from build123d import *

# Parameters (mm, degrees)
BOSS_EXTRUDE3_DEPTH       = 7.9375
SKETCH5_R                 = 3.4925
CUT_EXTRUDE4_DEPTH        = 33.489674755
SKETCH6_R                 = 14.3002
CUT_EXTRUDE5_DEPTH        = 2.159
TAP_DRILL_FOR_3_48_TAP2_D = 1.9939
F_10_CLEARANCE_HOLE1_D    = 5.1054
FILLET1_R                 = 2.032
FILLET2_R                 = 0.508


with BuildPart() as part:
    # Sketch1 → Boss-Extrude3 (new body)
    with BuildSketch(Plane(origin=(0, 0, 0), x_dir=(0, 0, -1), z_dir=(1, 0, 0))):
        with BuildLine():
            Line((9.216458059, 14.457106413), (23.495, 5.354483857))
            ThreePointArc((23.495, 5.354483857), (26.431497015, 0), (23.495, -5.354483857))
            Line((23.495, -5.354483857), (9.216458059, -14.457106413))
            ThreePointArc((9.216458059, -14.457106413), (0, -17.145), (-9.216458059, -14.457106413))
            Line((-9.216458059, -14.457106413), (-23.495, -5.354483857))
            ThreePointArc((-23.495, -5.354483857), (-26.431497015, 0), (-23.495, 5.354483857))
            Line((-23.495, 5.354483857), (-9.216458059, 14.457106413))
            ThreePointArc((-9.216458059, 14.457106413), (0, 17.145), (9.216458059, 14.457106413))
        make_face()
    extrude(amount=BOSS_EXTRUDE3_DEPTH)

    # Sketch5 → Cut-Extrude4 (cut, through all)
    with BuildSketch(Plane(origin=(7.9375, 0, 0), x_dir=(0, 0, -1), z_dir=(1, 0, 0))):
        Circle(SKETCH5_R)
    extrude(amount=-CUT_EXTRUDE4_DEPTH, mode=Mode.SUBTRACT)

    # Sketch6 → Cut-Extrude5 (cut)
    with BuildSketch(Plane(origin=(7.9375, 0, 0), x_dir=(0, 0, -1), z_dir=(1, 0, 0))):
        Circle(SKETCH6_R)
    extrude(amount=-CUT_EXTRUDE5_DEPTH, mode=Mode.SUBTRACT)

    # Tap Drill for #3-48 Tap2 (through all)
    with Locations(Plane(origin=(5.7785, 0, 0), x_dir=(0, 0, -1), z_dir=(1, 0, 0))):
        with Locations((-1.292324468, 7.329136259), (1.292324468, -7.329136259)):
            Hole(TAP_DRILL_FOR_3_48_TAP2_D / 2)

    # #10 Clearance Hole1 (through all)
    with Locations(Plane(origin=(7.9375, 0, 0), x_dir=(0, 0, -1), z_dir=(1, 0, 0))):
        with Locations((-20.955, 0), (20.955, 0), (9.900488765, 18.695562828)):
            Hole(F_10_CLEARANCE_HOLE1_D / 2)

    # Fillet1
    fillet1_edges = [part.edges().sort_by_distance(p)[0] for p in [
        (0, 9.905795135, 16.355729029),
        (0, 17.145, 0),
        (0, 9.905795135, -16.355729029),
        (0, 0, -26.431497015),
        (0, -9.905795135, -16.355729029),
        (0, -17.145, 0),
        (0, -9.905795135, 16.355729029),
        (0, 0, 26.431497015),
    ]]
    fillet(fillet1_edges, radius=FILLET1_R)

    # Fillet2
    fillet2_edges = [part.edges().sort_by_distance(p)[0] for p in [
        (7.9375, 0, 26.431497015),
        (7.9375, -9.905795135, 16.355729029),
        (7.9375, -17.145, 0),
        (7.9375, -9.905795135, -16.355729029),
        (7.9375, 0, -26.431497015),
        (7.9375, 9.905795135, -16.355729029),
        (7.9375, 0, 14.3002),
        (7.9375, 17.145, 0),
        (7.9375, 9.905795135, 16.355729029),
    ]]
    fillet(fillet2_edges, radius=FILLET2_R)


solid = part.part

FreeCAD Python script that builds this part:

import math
import FreeCAD as App
import Part
import Sketcher

V = App.Vector
Q = App.Units.Quantity


def edges_at(feature, points):
    """Names of the edges that pass closest to the given points."""
    edges = feature.Shape.Edges
    near = lambda p: min(range(len(edges)), key=lambda i: edges[i].distToShape(Part.Vertex(*p))[0])
    return sorted({f"Edge{near(p) + 1}" for p in points})

doc = App.newDocument("Part")
body = doc.addObject("PartDesign::Body", "Body")

# Sketch on YZ plane
sketch1 = body.newObject("Sketcher::SketchObject", "Sketch")
sketch1.AttachmentSupport = (doc.getObject("YZ_Plane"), [""])
sketch1.MapMode = "FlatFace"
sketch1.addGeometry(Part.LineSegment(V(5, -23, 0), V(14, -9, 0)), False)
sketch1.addGeometry(Part.ArcOfCircle(Part.Circle(V(0, 0, 0), V(0, 0, 1), 17), math.radians(-33), math.radians(33)), False)
sketch1.addGeometry(Part.LineSegment(V(14, 9, 0), V(5, 23, 0)), False)
sketch1.addGeometry(Part.ArcOfCircle(Part.Circle(V(0, 20, 0), V(0, 0, 1), 6), math.radians(33), math.radians(147)), False)
sketch1.addGeometry(Part.LineSegment(V(-5, 23, 0), V(-14, 9, 0)), False)
sketch1.addGeometry(Part.ArcOfCircle(Part.Circle(V(0, 0, 0), V(0, 0, 1), 17), math.radians(147), math.radians(213)), False)
sketch1.addGeometry(Part.LineSegment(V(-14, -9, 0), V(-5, -23, 0)), False)
sketch1.addGeometry(Part.ArcOfCircle(Part.Circle(V(0, -20, 0), V(0, 0, 1), 6), math.radians(-147), math.radians(-33)), False)
sketch1.addConstraint(Sketcher.Constraint("Tangent", 0, 2, 1, 1))
sketch1.addConstraint(Sketcher.Constraint("Tangent", 1, 2, 2, 1))
sketch1.addConstraint(Sketcher.Constraint("Tangent", 2, 2, 3, 1))
sketch1.addConstraint(Sketcher.Constraint("Tangent", 3, 2, 4, 1))
sketch1.addConstraint(Sketcher.Constraint("Tangent", 4, 2, 5, 1))
sketch1.addConstraint(Sketcher.Constraint("Tangent", 5, 2, 6, 1))
sketch1.addConstraint(Sketcher.Constraint("Tangent", 6, 2, 7, 1))
sketch1.addConstraint(Sketcher.Constraint("Tangent", 7, 2, 0, 1))
sketch1.addConstraint(Sketcher.Constraint("Coincident", 1, 3, -1, 1))
sketch1.addConstraint(Sketcher.Constraint("Coincident", 5, 3, -1, 1))
sketch1.addConstraint(Sketcher.Constraint("Equal", 1, 5))
sketch1.addConstraint(Sketcher.Constraint("Equal", 3, 7))
sketch1.addConstraint(Sketcher.Constraint("Symmetric", 3, 3, 7, 3, -1, 1))
sketch1.addConstraint(Sketcher.Constraint("PointOnObject", 3, 3, -2))
sketch1.addConstraint(Sketcher.Constraint("Radius", 3, Q("0.25 in")))
sketch1.addConstraint(Sketcher.Constraint("Radius", 1, Q("0.675 in")))
sketch1.addConstraint(Sketcher.Constraint("DistanceY", -1, 1, 2, 2, Q("0.925 in")))
pad1 = body.newObject("PartDesign::Pad", "Pad")
pad1.Profile = sketch1
pad1.Length = Q("0.3125 in")

# Sketch on YZ plane
sketch2 = body.newObject("Sketcher::SketchObject", "Sketch001")
sketch2.AttachmentSupport = (doc.getObject("YZ_Plane"), [""])
sketch2.MapMode = "FlatFace"
sketch2.AttachmentOffset = App.Placement(V(0, 0, 0.3125 * 25.4), App.Rotation())
sketch2.addGeometry(Part.Circle(V(0, 0, 0), V(0, 0, 1), 3.5), False)
sketch2.addConstraint(Sketcher.Constraint("Coincident", 0, 3, -1, 1))
sketch2.addConstraint(Sketcher.Constraint("Diameter", 0, Q("0.275 in")))
pocket1 = body.newObject("PartDesign::Pocket", "Pocket")
pocket1.Profile = sketch2
pocket1.Type = "ThroughAll"

# Sketch on YZ plane
sketch3 = body.newObject("Sketcher::SketchObject", "Sketch002")
sketch3.AttachmentSupport = (doc.getObject("YZ_Plane"), [""])
sketch3.MapMode = "FlatFace"
sketch3.AttachmentOffset = App.Placement(V(0, 0, 0.3125 * 25.4), App.Rotation())
sketch3.addGeometry(Part.Circle(V(0, 0, 0), V(0, 0, 1), 14), False)
sketch3.addConstraint(Sketcher.Constraint("Coincident", 0, 3, -1, 1))
sketch3.addConstraint(Sketcher.Constraint("Diameter", 0, Q("1.126 in")))
pocket2 = body.newObject("PartDesign::Pocket", "Pocket001")
pocket2.Profile = sketch3
pocket2.Length = Q("0.085 in")

# Sketch on YZ plane
sketch4 = body.newObject("Sketcher::SketchObject", "Sketch003")
sketch4.AttachmentSupport = (doc.getObject("YZ_Plane"), [""])
sketch4.MapMode = "FlatFace"
sketch4.AttachmentOffset = App.Placement(V(0, 0, 0.2275 * 25.4), App.Rotation())
sketch4.addGeometry(Part.Circle(V(7.3, 1.3, 0), V(0, 0, 1), 1), False)
sketch4.addGeometry(Part.Circle(V(-7.3, -1.3, 0), V(0, 0, 1), 1), False)
sketch4.addConstraint(Sketcher.Constraint("Equal", 0, 1))
sketch4.addConstraint(Sketcher.Constraint("Symmetric", 0, 3, 1, 3, -1, 1))
sketch4.addConstraint(Sketcher.Constraint("Diameter", 0, Q("0.0785 in")))
sketch4.addConstraint(Sketcher.Constraint("DistanceY", 1, 3, 0, 3, Q("2.584649 mm")))
sketch4.addConstraint(Sketcher.Constraint("DistanceX", -1, 1, 0, 3, Q("7.329136 mm")))
doc.recompute()
hole = body.newObject("PartDesign::Hole", "Hole")
hole.Profile = sketch4
hole.ThreadType = "None"
hole.Diameter = Q("0.0785 in")
hole.DepthType = "ThroughAll"

# Sketch on YZ plane
sketch5 = body.newObject("Sketcher::SketchObject", "Sketch004")
sketch5.AttachmentSupport = (doc.getObject("YZ_Plane"), [""])
sketch5.MapMode = "FlatFace"
sketch5.AttachmentOffset = App.Placement(V(0, 0, 0.3125 * 25.4), App.Rotation())
sketch5.addGeometry(Part.Circle(V(0, 21, 0), V(0, 0, 1), 2.6), False)
sketch5.addGeometry(Part.Circle(V(0, -21, 0), V(0, 0, 1), 2.6), False)
sketch5.addGeometry(Part.Circle(V(18.7, -9.9, 0), V(0, 0, 1), 2.6), False)
sketch5.addConstraint(Sketcher.Constraint("Equal", 0, 1))
sketch5.addConstraint(Sketcher.Constraint("Equal", 1, 2))
sketch5.addConstraint(Sketcher.Constraint("Symmetric", 0, 3, 1, 3, -1, 1))
sketch5.addConstraint(Sketcher.Constraint("PointOnObject", 0, 3, -2))
sketch5.addConstraint(Sketcher.Constraint("Diameter", 0, Q("0.201 in")))
sketch5.addConstraint(Sketcher.Constraint("DistanceY", 1, 3, 0, 3, Q("1.65 in")))
sketch5.addConstraint(Sketcher.Constraint("DistanceY", 2, 3, -1, 1, Q("9.900489 mm")))
sketch5.addConstraint(Sketcher.Constraint("DistanceX", -1, 1, 2, 3, Q("18.695563 mm")))
doc.recompute()
hole2 = body.newObject("PartDesign::Hole", "Hole001")
hole2.Profile = sketch5
hole2.ThreadType = "None"
hole2.Diameter = Q("0.201 in")
hole2.DepthType = "ThroughAll"
doc.recompute()

fillet = body.newObject("PartDesign::Fillet", "Fillet")
fillet.Base = (hole2, edges_at(hole2, [
    (0, 9.906, 16.356),
    (0, 17.145, 0),
    (0, 9.906, -16.356),
    (0, 0, -26.431),
    (0, -9.906, -16.356),
    (0, -17.145, 0),
    (0, -9.906, 16.356),
    (0, 0, 26.431),
]))
fillet.Radius = Q("0.08 in")
doc.recompute()

fillet2 = body.newObject("PartDesign::Fillet", "Fillet001")
fillet2.Base = (fillet, edges_at(fillet, [
    (7.938, 0, 26.431),
    (7.938, -9.906, 16.356),
    (7.938, -17.145, 0),
    (7.938, -9.906, -16.356),
    (7.938, 0, -26.431),
    (7.938, 9.906, -16.356),
    (7.938, 0, 14.3),
    (7.938, 17.145, 0),
    (7.938, 9.906, 16.356),
]))
fillet2.Radius = Q("0.02 in")

doc.recompute()
